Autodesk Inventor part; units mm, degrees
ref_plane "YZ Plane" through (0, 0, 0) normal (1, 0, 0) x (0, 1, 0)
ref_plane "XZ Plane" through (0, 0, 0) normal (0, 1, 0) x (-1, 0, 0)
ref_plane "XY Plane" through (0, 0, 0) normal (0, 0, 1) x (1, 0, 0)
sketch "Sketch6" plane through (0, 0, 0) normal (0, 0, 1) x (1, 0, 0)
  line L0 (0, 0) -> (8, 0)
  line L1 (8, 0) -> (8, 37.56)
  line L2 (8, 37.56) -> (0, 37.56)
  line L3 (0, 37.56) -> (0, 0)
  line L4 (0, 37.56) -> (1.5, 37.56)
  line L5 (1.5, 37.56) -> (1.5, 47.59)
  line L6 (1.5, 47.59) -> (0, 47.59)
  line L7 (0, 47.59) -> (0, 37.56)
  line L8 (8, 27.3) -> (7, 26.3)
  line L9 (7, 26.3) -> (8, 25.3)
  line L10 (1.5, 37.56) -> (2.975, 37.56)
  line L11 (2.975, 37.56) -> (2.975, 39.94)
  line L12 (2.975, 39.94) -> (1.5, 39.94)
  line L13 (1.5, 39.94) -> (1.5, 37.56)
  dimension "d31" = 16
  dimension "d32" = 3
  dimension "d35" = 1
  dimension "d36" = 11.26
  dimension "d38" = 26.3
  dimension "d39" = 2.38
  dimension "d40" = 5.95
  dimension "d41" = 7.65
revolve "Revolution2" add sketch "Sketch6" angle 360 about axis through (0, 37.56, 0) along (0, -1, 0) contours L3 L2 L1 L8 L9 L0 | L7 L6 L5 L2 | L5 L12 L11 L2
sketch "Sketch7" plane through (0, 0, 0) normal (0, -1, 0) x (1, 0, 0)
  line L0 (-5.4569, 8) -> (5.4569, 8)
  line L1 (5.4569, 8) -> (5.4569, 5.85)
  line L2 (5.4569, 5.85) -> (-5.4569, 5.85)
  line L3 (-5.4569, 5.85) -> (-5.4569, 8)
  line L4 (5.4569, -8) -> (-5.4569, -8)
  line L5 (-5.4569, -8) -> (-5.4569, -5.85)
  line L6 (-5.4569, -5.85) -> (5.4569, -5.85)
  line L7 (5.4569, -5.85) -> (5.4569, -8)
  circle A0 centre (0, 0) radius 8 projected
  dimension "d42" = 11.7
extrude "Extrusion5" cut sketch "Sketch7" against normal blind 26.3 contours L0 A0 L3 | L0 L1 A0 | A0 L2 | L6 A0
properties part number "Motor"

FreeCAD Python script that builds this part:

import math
import FreeCAD as App
import Part
import Sketcher
from FreeCAD import Vector

doc = App.newDocument("Part")
body = doc.addObject("PartDesign::Body", "Body")

# Sketch on XY plane
sketch1 = doc.addObject("Sketcher::SketchObject", "Sketch")
body.addObject(sketch1)
sketch1.AttachmentSupport = (doc.XY_Plane, [""])
sketch1.MapMode = "FlatFace"
sketch1.addGeometry([
    Part.LineSegment(Vector(0, 0, 0), Vector(8, 0, 0)),  # 0
    Part.LineSegment(Vector(8, 0, 0), Vector(8, 25.3, 0)),  # 1
    Part.LineSegment(Vector(8, 25.3, 0), Vector(7, 26.3, 0)),  # 2
    Part.LineSegment(Vector(7, 26.3, 0), Vector(8, 27.3, 0)),  # 3
    Part.LineSegment(Vector(8, 27.3, 0), Vector(8, 37.56, 0)),  # 4
    Part.LineSegment(Vector(8, 37.56, 0), Vector(2.975, 37.56, 0)),  # 5
    Part.LineSegment(Vector(2.975, 37.56, 0), Vector(2.975, 39.94, 0)),  # 6
    Part.LineSegment(Vector(2.975, 39.94, 0), Vector(1.5, 39.94, 0)),  # 7
    Part.LineSegment(Vector(1.5, 39.94, 0), Vector(1.5, 47.59, 0)),  # 8
    Part.LineSegment(Vector(1.5, 47.59, 0), Vector(0, 47.59, 0)),  # 9
    Part.LineSegment(Vector(0, 47.59, 0), Vector(0, 0, 0)),  # 10
], False)
sketch1.addConstraint([
    Sketcher.Constraint("Coincident", 0, 2, 1, 1),
    Sketcher.Constraint("Coincident", 1, 2, 2, 1),
    Sketcher.Constraint("Coincident", 2, 2, 3, 1),
    Sketcher.Constraint("Coincident", 3, 2, 4, 1),
    Sketcher.Constraint("Coincident", 4, 2, 5, 1),
    Sketcher.Constraint("Coincident", 5, 2, 6, 1),
    Sketcher.Constraint("Coincident", 6, 2, 7, 1),
    Sketcher.Constraint("Coincident", 7, 2, 8, 1),
    Sketcher.Constraint("Coincident", 8, 2, 9, 1),
    Sketcher.Constraint("Coincident", 9, 2, 10, 1),
    Sketcher.Constraint("Coincident", 10, 2, 0, 1),
    Sketcher.Constraint("Horizontal", 0),
    Sketcher.Constraint("Vertical", 1),
    Sketcher.Constraint("Vertical", 4),
    Sketcher.Constraint("Horizontal", 5),
    Sketcher.Constraint("Vertical", 6),
    Sketcher.Constraint("Horizontal", 7),
    Sketcher.Constraint("Vertical", 8),
    Sketcher.Constraint("Horizontal", 9),
    Sketcher.Constraint("Vertical", 10),
    Sketcher.Constraint("Coincident", 10, 2, -1, 1),
    Sketcher.Constraint("Perpendicular", 2, 3),
    Sketcher.Constraint("Vertical", 1, 2, 3, 2),
    Sketcher.Constraint("Equal", 2, 3),
    Sketcher.Constraint("DistanceX", 2, 2, 1, 2, 1.0),
    Sketcher.Constraint("DistanceY", 6, 1, 6, 2, 2.38),
    Sketcher.Constraint("DistanceY", 8, 1, 8, 2, 7.65),
    Sketcher.Constraint("DistanceY", -1, 1, 2, 2, 26.3),
    Sketcher.Constraint("DistanceX", 0, 1, 0, 2, 8.0),
    Sketcher.Constraint("DistanceY", 2, 2, 4, 2, 11.26),
    Sketcher.Constraint("DistanceX", 9, 2, 9, 1, 1.5),
    Sketcher.Constraint("DistanceX", 5, 2, 5, 1, 5.025),
])
revolution = doc.addObject("PartDesign::Revolution", "Revolution")
body.addObject(revolution)
revolution.Profile = sketch1
revolution.ReferenceAxis = (sketch1, ["V_Axis"])
revolution.Angle = 360

# Sketch on XZ plane
sketch2 = doc.addObject("Sketcher::SketchObject", "Sketch001")
body.addObject(sketch2)
sketch2.AttachmentSupport = (doc.XZ_Plane, [""])
sketch2.MapMode = "FlatFace"
sketch2.addGeometry([
    Part.LineSegment(Vector(-5.4569, 8, 0), Vector(-5.4569, 5.85, 0)),  # 0
    Part.LineSegment(Vector(-5.4569, 5.85, 0), Vector(5.4569, 5.85, 0)),  # 1
    Part.LineSegment(Vector(5.4569, 5.85, 0), Vector(5.4569, 8, 0)),  # 2
    Part.LineSegment(Vector(5.4569, 8, 0), Vector(-5.4569, 8, 0)),  # 3
    Part.LineSegment(Vector(5.4569, -5.85, 0), Vector(-5.4569, -5.85, 0)),  # 4
    Part.ArcOfCircle(Part.Circle(Vector(0, 0, 0), Vector(0, 0, 1), 8), math.radians(-133.008835), math.radians(-46.991165)),  # 5
], False)
sketch2.addConstraint([
    Sketcher.Constraint("Coincident", 0, 2, 1, 1),
    Sketcher.Constraint("Coincident", 1, 2, 2, 1),
    Sketcher.Constraint("Coincident", 2, 2, 3, 1),
    Sketcher.Constraint("Coincident", 3, 2, 0, 1),
    Sketcher.Constraint("Coincident", 4, 1, 5, 2),
    Sketcher.Constraint("Coincident", 5, 1, 4, 2),
    Sketcher.Constraint("Vertical", 0),
    Sketcher.Constraint("Horizontal", 1),
    Sketcher.Constraint("Vertical", 2),
    Sketcher.Constraint("Horizontal", 3),
    Sketcher.Constraint("Horizontal", 4),
    Sketcher.Constraint("Coincident", 5, 3, -1, 1),
    Sketcher.Constraint("Symmetric", 0, 2, 4, 1, -1, 1),
    Sketcher.Constraint("Vertical", 2, 2, 4, 1),
    Sketcher.Constraint("Radius", 5, 8.0),
    Sketcher.Constraint("DistanceY", 4, 1, 1, 2, 11.7),
    Sketcher.Constraint("DistanceY", -1, 1, 2, 2, 8.0),
])
pocket1 = doc.addObject("PartDesign::Pocket", "Pocket")
body.addObject(pocket1)
pocket1.Profile = sketch2
pocket1.Length = 26.3

doc.recompute()
